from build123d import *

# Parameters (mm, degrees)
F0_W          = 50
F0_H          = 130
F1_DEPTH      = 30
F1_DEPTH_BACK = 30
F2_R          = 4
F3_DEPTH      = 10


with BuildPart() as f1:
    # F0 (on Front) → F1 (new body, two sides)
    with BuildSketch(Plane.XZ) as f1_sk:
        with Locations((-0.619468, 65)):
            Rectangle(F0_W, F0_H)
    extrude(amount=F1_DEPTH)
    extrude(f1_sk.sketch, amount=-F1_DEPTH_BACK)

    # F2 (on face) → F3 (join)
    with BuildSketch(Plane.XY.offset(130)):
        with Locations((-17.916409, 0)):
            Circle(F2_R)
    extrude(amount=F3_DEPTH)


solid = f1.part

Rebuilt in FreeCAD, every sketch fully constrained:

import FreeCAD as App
import Part
import Sketcher

V = App.Vector
Q = App.Units.Quantity

doc = App.newDocument("Part")
body = doc.addObject("PartDesign::Body", "Body")

# Sketch on XZ plane
sketch1 = body.newObject("Sketcher::SketchObject", "Sketch")
sketch1.AttachmentSupport = (doc.getObject("XZ_Plane"), [""])
sketch1.MapMode = "FlatFace"
sketch1.addGeometry([
    Part.LineSegment(V(-26, 130, 0), V(-26, 0, 0)),
    Part.LineSegment(V(-26, 0, 0), V(24, 0, 0)),
    Part.LineSegment(V(24, 0, 0), V(24, 130, 0)),
    Part.LineSegment(V(24, 130, 0), V(-26, 130, 0)),
], False)
sketch1.addConstraint([
    Sketcher.Constraint("Coincident", 0, 2, 1, 1),
    Sketcher.Constraint("Coincident", 1, 2, 2, 1),
    Sketcher.Constraint("Coincident", 2, 2, 3, 1),
    Sketcher.Constraint("Coincident", 3, 2, 0, 1),
    Sketcher.Constraint("Vertical", 0),
    Sketcher.Constraint("Horizontal", 1),
    Sketcher.Constraint("Vertical", 2),
    Sketcher.Constraint("Horizontal", 3),
    Sketcher.Constraint("PointOnObject", 0, 2, -1),
    Sketcher.Constraint("DistanceX", 1, 1, 1, 2, Q("50 mm")),
    Sketcher.Constraint("DistanceY", 0, 2, 0, 1, Q("130 mm")),
    Sketcher.Constraint("DistanceX", 0, 2, -1, 1, Q("25.619468 mm")),
])
pad1 = body.newObject("PartDesign::Pad", "Pad")
pad1.Profile = sketch1
pad1.Type = "TwoLengths"
pad1.Length = 30
pad1.Length2 = 30

# Sketch on XY plane
sketch2 = body.newObject("Sketcher::SketchObject", "Sketch001")
sketch2.AttachmentSupport = (doc.getObject("XY_Plane"), [""])
sketch2.MapMode = "FlatFace"
sketch2.AttachmentOffset = App.Placement(V(0, 0, 130), App.Rotation())
sketch2.addGeometry(Part.Circle(V(-17.9, 0, 0), V(0, 0, 1), 4), False)
sketch2.addConstraint([
    Sketcher.Constraint("PointOnObject", 0, 3, -1),
    Sketcher.Constraint("Diameter", 0, Q("8 mm")),
    Sketcher.Constraint("DistanceX", 0, 3, -1, 1, Q("17.916409 mm")),
])
pad2 = body.newObject("PartDesign::Pad", "Pad001")
pad2.Profile = sketch2
pad2.Length = 10

doc.recompute()
